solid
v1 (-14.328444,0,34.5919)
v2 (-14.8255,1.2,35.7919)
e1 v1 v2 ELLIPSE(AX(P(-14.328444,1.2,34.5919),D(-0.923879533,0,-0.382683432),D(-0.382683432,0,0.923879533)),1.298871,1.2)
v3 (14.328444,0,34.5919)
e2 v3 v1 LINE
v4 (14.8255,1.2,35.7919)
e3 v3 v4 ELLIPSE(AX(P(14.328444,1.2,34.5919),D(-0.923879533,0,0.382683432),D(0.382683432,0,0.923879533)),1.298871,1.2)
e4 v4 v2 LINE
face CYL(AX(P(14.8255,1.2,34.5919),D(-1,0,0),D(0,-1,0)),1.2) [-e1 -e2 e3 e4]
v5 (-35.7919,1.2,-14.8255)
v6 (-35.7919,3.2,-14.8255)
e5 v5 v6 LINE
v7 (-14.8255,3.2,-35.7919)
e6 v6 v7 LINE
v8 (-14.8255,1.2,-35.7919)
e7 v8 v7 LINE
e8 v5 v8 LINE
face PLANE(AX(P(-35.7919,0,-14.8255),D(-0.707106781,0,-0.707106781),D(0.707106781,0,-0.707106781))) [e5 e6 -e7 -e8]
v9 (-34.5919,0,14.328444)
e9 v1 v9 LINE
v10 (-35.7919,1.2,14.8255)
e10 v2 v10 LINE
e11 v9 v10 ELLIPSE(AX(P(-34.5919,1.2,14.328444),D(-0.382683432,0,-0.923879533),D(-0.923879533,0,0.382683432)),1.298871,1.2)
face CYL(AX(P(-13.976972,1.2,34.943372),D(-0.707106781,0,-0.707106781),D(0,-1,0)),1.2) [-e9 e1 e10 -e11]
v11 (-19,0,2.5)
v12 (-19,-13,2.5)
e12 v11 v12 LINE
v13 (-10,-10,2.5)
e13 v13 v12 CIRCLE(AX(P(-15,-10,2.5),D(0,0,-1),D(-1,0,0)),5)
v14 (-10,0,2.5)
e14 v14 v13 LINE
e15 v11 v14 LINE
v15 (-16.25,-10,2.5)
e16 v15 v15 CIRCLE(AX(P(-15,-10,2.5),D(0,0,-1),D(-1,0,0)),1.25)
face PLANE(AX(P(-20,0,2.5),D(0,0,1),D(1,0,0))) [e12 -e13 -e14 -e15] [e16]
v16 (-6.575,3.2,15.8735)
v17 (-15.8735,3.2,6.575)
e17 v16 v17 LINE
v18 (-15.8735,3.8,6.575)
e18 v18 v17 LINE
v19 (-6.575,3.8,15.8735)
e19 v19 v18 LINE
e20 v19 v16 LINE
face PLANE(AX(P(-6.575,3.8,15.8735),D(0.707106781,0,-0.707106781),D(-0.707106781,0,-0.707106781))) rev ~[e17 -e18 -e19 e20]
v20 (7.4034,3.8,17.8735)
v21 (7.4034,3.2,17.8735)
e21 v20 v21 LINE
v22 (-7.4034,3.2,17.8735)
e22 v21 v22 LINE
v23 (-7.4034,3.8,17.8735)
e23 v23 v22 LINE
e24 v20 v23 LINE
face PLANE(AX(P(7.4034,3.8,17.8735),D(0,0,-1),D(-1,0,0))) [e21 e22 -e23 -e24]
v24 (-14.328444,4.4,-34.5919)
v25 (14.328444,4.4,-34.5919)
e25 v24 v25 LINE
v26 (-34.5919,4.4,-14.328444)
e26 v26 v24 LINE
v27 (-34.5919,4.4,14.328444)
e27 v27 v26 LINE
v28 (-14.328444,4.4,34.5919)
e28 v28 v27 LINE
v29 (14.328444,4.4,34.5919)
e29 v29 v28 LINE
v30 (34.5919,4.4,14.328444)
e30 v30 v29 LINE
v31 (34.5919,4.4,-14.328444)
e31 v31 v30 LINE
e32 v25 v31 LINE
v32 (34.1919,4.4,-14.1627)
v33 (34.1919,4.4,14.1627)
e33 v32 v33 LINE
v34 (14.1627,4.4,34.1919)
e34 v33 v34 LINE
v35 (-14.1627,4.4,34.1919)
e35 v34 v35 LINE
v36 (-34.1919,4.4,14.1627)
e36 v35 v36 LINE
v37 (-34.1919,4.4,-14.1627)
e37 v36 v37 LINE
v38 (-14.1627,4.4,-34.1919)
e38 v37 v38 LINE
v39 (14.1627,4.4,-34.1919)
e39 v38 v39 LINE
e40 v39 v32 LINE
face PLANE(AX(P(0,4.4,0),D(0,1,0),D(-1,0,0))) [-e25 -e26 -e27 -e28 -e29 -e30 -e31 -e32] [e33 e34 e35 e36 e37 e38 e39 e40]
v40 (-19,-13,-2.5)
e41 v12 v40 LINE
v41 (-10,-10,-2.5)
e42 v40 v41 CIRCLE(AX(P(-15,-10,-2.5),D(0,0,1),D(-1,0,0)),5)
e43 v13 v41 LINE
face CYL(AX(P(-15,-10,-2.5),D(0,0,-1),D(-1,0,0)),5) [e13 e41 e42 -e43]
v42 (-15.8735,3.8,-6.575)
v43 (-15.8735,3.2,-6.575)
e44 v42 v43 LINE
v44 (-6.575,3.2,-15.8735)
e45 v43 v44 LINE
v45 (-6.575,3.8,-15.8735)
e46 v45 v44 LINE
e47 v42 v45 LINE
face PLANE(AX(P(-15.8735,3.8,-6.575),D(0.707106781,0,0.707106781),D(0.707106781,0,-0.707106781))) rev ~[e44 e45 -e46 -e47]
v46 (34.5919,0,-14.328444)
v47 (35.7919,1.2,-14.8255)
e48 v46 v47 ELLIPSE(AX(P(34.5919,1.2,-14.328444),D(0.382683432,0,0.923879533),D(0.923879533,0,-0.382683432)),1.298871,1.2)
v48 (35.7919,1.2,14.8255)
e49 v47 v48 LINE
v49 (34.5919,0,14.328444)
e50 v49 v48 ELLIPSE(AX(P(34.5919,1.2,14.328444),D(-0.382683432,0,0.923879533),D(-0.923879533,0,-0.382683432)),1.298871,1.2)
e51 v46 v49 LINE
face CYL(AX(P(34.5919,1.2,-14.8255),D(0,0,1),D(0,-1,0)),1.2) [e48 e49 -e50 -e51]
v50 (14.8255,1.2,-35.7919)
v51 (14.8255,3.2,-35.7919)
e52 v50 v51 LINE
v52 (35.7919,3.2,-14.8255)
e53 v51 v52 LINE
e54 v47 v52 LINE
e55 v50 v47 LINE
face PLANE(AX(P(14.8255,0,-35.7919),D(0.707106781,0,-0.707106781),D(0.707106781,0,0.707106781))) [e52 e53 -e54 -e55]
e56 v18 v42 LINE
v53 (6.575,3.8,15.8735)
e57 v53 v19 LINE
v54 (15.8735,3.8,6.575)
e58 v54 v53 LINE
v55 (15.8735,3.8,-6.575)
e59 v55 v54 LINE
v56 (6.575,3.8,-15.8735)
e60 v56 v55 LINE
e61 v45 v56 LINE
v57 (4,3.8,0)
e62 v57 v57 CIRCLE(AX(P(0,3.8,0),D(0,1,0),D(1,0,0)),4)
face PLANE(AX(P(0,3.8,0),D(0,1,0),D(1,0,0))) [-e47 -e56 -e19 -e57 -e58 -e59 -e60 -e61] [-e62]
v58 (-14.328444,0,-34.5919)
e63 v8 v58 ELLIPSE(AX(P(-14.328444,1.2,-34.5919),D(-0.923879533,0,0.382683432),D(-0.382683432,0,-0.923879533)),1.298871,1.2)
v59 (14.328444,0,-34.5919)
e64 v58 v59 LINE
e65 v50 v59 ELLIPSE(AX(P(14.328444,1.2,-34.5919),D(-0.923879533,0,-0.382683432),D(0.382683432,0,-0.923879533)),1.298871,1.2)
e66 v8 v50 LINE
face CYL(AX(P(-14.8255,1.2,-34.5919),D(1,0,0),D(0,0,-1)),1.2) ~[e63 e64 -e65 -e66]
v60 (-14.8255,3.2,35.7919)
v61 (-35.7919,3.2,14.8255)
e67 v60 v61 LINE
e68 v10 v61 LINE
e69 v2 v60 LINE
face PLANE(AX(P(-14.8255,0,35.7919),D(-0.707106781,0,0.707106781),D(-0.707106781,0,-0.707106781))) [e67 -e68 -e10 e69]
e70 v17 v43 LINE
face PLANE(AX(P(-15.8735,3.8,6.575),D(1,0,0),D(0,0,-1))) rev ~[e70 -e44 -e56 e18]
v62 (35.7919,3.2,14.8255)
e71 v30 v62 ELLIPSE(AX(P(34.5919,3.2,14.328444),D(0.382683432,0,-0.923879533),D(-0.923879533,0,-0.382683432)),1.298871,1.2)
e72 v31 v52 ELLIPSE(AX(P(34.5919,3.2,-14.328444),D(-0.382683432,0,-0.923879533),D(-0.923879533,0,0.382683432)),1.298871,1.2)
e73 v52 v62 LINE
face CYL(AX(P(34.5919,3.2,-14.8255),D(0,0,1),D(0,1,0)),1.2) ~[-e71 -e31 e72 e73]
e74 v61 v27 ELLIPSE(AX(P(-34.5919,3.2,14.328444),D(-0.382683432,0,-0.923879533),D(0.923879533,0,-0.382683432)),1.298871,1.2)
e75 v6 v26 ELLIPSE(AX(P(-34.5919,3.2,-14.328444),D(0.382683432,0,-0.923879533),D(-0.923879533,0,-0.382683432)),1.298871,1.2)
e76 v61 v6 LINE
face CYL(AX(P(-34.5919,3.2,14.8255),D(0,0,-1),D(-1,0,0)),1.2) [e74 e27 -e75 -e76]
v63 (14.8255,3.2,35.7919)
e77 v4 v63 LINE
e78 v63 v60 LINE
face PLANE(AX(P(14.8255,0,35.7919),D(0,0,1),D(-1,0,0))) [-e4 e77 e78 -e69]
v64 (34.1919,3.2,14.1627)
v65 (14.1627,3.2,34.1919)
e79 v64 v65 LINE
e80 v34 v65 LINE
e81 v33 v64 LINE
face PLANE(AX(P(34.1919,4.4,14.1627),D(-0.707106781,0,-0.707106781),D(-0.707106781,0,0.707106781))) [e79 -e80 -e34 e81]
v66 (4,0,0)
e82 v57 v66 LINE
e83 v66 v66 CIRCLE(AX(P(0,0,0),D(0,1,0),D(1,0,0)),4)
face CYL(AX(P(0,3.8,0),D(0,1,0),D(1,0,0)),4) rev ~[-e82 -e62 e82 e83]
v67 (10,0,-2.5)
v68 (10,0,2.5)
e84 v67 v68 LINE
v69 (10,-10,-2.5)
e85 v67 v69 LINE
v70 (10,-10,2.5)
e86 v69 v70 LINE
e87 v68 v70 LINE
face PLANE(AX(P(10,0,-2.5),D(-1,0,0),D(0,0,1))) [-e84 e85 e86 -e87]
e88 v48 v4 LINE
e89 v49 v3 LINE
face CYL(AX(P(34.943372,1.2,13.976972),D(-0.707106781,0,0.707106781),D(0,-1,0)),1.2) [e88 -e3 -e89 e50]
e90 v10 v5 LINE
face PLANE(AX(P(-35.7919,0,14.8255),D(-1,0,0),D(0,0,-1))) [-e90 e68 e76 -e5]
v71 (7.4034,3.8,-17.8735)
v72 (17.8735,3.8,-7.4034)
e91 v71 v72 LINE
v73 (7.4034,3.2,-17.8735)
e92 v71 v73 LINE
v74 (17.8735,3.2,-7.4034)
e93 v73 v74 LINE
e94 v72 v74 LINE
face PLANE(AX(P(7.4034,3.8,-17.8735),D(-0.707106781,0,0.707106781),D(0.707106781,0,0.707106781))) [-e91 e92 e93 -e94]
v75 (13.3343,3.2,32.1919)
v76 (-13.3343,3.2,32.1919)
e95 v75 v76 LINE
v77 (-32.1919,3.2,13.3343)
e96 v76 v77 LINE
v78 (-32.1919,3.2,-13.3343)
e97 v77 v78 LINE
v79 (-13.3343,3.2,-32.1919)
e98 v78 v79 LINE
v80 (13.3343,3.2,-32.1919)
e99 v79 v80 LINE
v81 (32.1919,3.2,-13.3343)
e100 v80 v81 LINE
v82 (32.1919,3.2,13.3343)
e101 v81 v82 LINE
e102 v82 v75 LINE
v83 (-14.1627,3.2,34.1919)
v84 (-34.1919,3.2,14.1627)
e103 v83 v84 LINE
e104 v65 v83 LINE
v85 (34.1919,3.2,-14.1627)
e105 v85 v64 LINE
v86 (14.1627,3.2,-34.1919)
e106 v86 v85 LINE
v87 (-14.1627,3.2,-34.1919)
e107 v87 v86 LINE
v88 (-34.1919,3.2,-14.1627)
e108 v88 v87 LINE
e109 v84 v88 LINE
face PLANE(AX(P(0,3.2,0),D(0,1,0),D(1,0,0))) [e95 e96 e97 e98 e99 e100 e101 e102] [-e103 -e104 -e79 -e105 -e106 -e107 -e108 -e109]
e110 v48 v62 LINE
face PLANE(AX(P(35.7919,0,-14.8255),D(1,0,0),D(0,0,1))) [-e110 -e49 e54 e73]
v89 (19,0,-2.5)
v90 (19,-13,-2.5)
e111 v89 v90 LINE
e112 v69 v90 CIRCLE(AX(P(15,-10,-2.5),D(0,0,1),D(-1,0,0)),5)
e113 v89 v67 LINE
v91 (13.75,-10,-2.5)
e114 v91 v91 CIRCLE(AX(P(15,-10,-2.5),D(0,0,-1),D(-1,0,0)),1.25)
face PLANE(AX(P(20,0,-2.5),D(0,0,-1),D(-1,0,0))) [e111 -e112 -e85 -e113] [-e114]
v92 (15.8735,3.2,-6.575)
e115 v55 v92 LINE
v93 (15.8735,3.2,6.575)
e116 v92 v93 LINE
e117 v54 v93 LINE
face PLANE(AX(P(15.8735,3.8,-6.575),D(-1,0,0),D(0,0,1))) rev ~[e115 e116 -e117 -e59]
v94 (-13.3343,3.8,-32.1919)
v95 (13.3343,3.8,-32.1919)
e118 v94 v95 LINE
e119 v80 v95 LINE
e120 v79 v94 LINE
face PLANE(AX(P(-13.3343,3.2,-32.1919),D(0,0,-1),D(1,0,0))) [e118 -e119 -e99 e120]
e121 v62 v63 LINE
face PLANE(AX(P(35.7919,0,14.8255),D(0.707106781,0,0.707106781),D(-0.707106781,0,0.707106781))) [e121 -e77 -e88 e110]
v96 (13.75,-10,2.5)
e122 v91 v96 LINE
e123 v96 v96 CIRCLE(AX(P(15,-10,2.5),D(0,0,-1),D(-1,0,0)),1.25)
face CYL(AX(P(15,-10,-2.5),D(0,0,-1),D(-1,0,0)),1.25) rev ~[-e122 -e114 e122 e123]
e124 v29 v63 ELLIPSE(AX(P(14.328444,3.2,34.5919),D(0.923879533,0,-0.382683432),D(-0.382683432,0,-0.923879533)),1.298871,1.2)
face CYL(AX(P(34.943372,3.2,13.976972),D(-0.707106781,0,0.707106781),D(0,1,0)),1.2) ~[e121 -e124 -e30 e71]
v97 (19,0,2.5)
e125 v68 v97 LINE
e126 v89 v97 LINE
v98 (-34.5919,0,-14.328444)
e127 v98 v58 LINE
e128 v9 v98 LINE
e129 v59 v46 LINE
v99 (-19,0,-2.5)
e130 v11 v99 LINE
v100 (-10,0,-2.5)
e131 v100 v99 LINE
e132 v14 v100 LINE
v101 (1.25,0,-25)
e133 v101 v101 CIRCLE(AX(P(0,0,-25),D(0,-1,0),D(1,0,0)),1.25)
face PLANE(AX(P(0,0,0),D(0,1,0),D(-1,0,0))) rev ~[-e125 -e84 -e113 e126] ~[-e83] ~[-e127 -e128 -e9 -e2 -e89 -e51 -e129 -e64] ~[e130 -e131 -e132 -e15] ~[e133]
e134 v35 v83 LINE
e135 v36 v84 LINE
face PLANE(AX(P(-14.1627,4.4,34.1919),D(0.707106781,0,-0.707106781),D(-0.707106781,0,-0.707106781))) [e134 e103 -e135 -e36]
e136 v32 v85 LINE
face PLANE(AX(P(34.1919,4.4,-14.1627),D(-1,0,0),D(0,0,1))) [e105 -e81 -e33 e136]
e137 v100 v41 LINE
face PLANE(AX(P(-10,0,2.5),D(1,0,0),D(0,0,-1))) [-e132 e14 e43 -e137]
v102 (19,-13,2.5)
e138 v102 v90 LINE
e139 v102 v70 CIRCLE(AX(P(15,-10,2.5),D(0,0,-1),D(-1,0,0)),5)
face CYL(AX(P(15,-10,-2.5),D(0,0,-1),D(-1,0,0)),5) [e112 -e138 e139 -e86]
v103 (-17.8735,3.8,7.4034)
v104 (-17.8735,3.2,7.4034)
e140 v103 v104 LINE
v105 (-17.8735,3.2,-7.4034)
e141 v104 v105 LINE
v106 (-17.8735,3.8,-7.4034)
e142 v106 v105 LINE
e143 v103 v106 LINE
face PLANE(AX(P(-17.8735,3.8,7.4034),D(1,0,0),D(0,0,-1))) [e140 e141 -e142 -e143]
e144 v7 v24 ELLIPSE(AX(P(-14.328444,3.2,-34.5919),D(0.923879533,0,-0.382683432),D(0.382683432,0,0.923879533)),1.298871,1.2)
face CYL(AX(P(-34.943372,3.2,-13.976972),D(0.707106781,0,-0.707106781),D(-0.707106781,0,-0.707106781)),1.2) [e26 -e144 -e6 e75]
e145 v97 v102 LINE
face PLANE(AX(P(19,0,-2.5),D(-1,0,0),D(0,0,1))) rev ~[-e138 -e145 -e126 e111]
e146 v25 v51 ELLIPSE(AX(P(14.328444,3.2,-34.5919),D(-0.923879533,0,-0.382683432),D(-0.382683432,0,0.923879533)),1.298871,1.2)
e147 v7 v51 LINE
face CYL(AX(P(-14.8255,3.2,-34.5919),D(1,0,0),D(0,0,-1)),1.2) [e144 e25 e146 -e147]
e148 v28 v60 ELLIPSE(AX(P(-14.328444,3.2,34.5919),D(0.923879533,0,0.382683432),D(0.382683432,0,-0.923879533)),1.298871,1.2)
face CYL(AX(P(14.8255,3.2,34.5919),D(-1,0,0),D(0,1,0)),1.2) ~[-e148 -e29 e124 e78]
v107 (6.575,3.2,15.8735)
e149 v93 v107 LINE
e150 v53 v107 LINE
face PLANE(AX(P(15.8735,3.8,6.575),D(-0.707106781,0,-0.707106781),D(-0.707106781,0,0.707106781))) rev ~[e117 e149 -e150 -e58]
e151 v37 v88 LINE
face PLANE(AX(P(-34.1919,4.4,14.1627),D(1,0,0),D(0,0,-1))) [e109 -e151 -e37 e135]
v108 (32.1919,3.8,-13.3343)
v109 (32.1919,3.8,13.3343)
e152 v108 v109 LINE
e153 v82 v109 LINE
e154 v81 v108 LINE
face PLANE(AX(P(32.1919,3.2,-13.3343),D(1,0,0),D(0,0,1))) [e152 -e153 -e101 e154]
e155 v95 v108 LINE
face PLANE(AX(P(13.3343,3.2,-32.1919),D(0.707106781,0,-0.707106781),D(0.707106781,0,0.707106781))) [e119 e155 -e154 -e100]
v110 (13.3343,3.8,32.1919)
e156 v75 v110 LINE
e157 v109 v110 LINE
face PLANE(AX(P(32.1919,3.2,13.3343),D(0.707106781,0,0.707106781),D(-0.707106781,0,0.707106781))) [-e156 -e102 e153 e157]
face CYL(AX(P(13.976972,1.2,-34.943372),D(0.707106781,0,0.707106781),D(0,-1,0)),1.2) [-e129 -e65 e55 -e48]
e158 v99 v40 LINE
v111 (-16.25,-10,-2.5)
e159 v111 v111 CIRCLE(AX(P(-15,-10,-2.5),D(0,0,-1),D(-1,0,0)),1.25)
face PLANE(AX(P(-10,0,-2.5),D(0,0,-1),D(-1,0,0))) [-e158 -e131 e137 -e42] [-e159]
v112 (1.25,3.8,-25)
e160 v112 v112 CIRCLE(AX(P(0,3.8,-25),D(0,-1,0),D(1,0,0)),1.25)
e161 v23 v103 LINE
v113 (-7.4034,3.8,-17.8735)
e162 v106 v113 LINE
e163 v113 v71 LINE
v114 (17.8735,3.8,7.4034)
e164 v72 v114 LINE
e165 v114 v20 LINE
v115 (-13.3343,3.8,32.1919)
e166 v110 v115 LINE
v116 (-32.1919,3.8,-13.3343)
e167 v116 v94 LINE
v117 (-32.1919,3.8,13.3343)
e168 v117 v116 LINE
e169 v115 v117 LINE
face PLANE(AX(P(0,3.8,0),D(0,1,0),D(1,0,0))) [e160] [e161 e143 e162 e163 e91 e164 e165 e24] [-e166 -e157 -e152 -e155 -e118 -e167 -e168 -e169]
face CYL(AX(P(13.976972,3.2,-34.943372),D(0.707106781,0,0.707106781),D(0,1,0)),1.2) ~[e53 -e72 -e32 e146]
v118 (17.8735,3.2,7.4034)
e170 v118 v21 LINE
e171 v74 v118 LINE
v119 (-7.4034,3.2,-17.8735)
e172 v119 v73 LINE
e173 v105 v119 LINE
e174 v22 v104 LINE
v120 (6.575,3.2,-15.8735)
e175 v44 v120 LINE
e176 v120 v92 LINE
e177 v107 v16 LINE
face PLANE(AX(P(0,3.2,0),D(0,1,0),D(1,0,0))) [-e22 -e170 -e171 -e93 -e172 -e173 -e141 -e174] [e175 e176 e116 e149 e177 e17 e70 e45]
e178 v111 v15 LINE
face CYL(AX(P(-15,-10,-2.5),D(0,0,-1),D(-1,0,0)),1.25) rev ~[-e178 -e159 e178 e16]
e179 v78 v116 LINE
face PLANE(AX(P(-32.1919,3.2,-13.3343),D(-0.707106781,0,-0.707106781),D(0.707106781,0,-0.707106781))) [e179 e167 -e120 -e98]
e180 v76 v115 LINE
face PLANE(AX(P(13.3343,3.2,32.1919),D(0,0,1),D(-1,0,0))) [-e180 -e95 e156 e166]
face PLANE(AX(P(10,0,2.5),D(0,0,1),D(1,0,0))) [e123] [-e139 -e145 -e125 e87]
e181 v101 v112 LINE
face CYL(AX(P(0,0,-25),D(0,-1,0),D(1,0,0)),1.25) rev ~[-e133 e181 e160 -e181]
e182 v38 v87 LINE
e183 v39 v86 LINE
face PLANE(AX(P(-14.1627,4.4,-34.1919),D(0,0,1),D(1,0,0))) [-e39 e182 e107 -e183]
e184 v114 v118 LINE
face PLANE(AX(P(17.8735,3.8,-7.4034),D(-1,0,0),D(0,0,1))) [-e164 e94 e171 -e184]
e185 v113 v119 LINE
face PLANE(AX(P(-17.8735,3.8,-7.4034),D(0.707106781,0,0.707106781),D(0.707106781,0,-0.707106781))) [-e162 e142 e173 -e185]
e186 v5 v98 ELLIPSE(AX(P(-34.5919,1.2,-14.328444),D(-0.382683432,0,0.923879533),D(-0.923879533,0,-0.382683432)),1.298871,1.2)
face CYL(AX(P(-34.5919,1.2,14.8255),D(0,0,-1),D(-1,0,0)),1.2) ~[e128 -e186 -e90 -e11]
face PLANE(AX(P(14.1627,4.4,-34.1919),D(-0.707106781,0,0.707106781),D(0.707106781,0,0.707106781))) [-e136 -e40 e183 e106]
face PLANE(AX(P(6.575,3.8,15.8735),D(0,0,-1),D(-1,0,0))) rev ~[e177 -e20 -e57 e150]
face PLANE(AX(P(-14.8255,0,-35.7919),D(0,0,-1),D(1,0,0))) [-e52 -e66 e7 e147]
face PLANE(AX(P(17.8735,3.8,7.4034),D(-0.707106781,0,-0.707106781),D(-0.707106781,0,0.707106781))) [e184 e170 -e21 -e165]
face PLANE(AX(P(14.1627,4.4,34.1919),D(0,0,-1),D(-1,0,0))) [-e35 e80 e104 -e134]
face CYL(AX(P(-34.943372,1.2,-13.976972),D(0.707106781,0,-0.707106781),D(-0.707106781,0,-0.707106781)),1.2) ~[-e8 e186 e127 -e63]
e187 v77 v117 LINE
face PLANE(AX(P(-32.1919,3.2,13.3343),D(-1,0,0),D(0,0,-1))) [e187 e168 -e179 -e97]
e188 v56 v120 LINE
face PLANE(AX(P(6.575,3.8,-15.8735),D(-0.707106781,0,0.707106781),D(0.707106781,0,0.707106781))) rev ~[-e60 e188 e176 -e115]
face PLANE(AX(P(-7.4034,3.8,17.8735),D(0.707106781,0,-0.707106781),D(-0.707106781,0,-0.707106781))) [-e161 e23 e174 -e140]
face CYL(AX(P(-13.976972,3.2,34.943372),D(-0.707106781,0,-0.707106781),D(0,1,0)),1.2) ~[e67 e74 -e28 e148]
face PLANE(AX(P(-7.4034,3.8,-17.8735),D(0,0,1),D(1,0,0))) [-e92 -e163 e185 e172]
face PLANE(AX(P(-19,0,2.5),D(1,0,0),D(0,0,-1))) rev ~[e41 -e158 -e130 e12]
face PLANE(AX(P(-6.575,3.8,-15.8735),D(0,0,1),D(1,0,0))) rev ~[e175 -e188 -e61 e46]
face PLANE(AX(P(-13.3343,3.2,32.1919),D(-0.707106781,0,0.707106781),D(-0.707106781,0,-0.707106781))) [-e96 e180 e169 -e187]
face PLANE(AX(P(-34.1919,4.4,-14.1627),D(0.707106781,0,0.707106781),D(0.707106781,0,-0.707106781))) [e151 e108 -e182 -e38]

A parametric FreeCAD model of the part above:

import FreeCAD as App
import Part
import Sketcher

V = App.Vector
Q = App.Units.Quantity


def edges_at(feature, points):
    """Names of the edges that pass closest to the given points."""
    edges = feature.Shape.Edges
    near = lambda p: min(range(len(edges)), key=lambda i: edges[i].distToShape(Part.Vertex(*p))[0])
    return sorted({f"Edge{near(p) + 1}" for p in points})

doc = App.newDocument("Part")
params = doc.addObject("Spreadsheet::Sheet", "Params")
for row, (alias, value) in enumerate([
    ("pad1_length", "4.4 mm"),
    ("pocket1_length", "1.2 mm"),
    ("sketch3_width", "10 mm"),
    ("sketch3_height", "5 mm"),
    ("pad2_length", "10 mm"),
    ("sketch4_diameter", "10 mm"),
    ("pad3_length", "5 mm"),
    ("sketch5_diameter", "2.5 mm"),
    ("pocket2_length", "5 mm"),
    ("pad4_length", "0.6 mm"),
    ("fillet_radius", "1.2 mm"),
    ("sketch7_width", "1 mm"),
    ("sketch7_height", "5 mm"),
    ("pocket3_length", "15 mm"),
    ("sketch8_diameter", "2.5 mm"),
    ("pocket4_length", "5 mm"),
    ("sketch9_width", "13.15 mm"),
    ("sketch9_length", "13.15 mm"),
    ("pocket5_length", "0.6 mm"),
    ("sketch10_diameter", "8 mm"),
    ("pocket6_length", "3.8 mm"),
], start=1):
    params.set(f"A{row}", alias)
    params.set(f"B{row}", "=" + value)
    params.setAlias(f"B{row}", alias)

body = doc.addObject("PartDesign::Body", "Body")

sketch1 = body.newObject("Sketcher::SketchObject", "Sketch")
sketch1.AttachmentSupport = (doc.getObject("XZ_Plane"), [""])
sketch1.MapMode = "FlatFace"
sketch1.addGeometry(Part.LineSegment(V(-15, -36, 0), V(-36, -15, 0)), False)
sketch1.addGeometry(Part.LineSegment(V(-36, -15, 0), V(-36, 15, 0)), False)
sketch1.addGeometry(Part.LineSegment(V(-36, 15, 0), V(-15, 36, 0)), False)
sketch1.addGeometry(Part.LineSegment(V(-15, 36, 0), V(15, 36, 0)), False)
sketch1.addGeometry(Part.LineSegment(V(15, 36, 0), V(36, 15, 0)), False)
sketch1.addGeometry(Part.LineSegment(V(36, 15, 0), V(36, -15, 0)), False)
sketch1.addGeometry(Part.LineSegment(V(36, -15, 0), V(15, -36, 0)), False)
sketch1.addGeometry(Part.LineSegment(V(15, -36, 0), V(-15, -36, 0)), False)
sketch1.addConstraint(Sketcher.Constraint("Coincident", 0, 2, 1, 1))
sketch1.addConstraint(Sketcher.Constraint("Coincident", 1, 2, 2, 1))
sketch1.addConstraint(Sketcher.Constraint("Coincident", 2, 2, 3, 1))
sketch1.addConstraint(Sketcher.Constraint("Coincident", 3, 2, 4, 1))
sketch1.addConstraint(Sketcher.Constraint("Coincident", 4, 2, 5, 1))
sketch1.addConstraint(Sketcher.Constraint("Coincident", 5, 2, 6, 1))
sketch1.addConstraint(Sketcher.Constraint("Coincident", 6, 2, 7, 1))
sketch1.addConstraint(Sketcher.Constraint("Coincident", 7, 2, 0, 1))
sketch1.addConstraint(Sketcher.Constraint("Vertical", 1))
sketch1.addConstraint(Sketcher.Constraint("Horizontal", 3))
sketch1.addConstraint(Sketcher.Constraint("Vertical", 5))
sketch1.addConstraint(Sketcher.Constraint("Horizontal", 7))
sketch1.addConstraint(Sketcher.Constraint("Symmetric", 0, 2, 4, 2, -1, 1))
sketch1.addConstraint(Sketcher.Constraint("Symmetric", 2, 2, 6, 2, -1, 1))
sketch1.addConstraint(Sketcher.Constraint("Perpendicular", 0, 2))
sketch1.addConstraint(Sketcher.Constraint("Perpendicular", 2, 4))
sketch1.addConstraint(Sketcher.Constraint("Perpendicular", 4, 6))
sketch1.addConstraint(Sketcher.Constraint("Horizontal", 1, 2, 4, 2))
sketch1.addConstraint(Sketcher.Constraint("Vertical", 3, 2, 6, 2))
sketch1.addConstraint(Sketcher.Constraint("Equal", 7, 1))
sketch1.addConstraint(Sketcher.Constraint("DistanceX", 3, 1, 3, 2, Q("29.651 mm")))
sketch1.addConstraint(Sketcher.Constraint("Distance", 0, Q("29.651 mm")))
pad1 = body.newObject("PartDesign::Pad", "Pad")
pad1.Profile = sketch1
pad1.setExpression("Length", "Params.pad1_length")
pad1.Reversed = True

sketch2 = body.newObject("Sketcher::SketchObject", "Sketch001")
sketch2.AttachmentSupport = (doc.getObject("XZ_Plane"), [""])
sketch2.MapMode = "FlatFace"
sketch2.AttachmentOffset = App.Placement(V(0, 0, -4.4), App.Rotation())
sketch2.addGeometry(Part.LineSegment(V(14, -34, 0), V(-14, -34, 0)), False)
sketch2.addGeometry(Part.LineSegment(V(-14, -34, 0), V(-34, -14, 0)), False)
sketch2.addGeometry(Part.LineSegment(V(-34, -14, 0), V(-34, 14, 0)), False)
sketch2.addGeometry(Part.LineSegment(V(-34, 14, 0), V(-14, 34, 0)), False)
sketch2.addGeometry(Part.LineSegment(V(-14, 34, 0), V(14, 34, 0)), False)
sketch2.addGeometry(Part.LineSegment(V(14, 34, 0), V(34, 14, 0)), False)
sketch2.addGeometry(Part.LineSegment(V(34, 14, 0), V(34, -14, 0)), False)
sketch2.addGeometry(Part.LineSegment(V(34, -14, 0), V(14, -34, 0)), False)
sketch2.addConstraint(Sketcher.Constraint("Coincident", 0, 2, 1, 1))
sketch2.addConstraint(Sketcher.Constraint("Coincident", 1, 2, 2, 1))
sketch2.addConstraint(Sketcher.Constraint("Coincident", 2, 2, 3, 1))
sketch2.addConstraint(Sketcher.Constraint("Coincident", 3, 2, 4, 1))
sketch2.addConstraint(Sketcher.Constraint("Coincident", 4, 2, 5, 1))
sketch2.addConstraint(Sketcher.Constraint("Coincident", 5, 2, 6, 1))
sketch2.addConstraint(Sketcher.Constraint("Coincident", 6, 2, 7, 1))
sketch2.addConstraint(Sketcher.Constraint("Coincident", 7, 2, 0, 1))
sketch2.addConstraint(Sketcher.Constraint("Horizontal", 0))
sketch2.addConstraint(Sketcher.Constraint("Vertical", 2))
sketch2.addConstraint(Sketcher.Constraint("Horizontal", 4))
sketch2.addConstraint(Sketcher.Constraint("Vertical", 6))
sketch2.addConstraint(Sketcher.Constraint("Symmetric", 0, 2, 4, 2, -1, 1))
sketch2.addConstraint(Sketcher.Constraint("Symmetric", 1, 2, 5, 2, -1, 1))
sketch2.addConstraint(Sketcher.Constraint("Perpendicular", 1, 3))
sketch2.addConstraint(Sketcher.Constraint("Perpendicular", 5, 7))
sketch2.addConstraint(Sketcher.Constraint("Horizontal", 2, 2, 5, 2))
sketch2.addConstraint(Sketcher.Constraint("Horizontal", 1, 2, 6, 2))
sketch2.addConstraint(Sketcher.Constraint("Vertical", 0, 2, 3, 2))
sketch2.addConstraint(Sketcher.Constraint("Equal", 4, 2))
sketch2.addConstraint(Sketcher.Constraint("DistanceX", 0, 2, 0, 1, Q("28.3254 mm")))
sketch2.addConstraint(Sketcher.Constraint("DistanceY", 0, 2, -1, 1, Q("34.192 mm")))
pocket1 = body.newObject("PartDesign::Pocket", "Pocket")
pocket1.Profile = sketch2
pocket1.setExpression("Length", "Params.pocket1_length")
pocket1.Reversed = True

sketch3 = body.newObject("Sketcher::SketchObject", "Sketch002")
sketch3.AttachmentSupport = (doc.getObject("XZ_Plane"), [""])
sketch3.MapMode = "FlatFace"
sketch3.addGeometry(Part.LineSegment(V(20, 2, 0), V(10, 2, 0)), False)
sketch3.addGeometry(Part.LineSegment(V(10, 2, 0), V(10, -2, 0)), False)
sketch3.addGeometry(Part.LineSegment(V(10, -2, 0), V(20, -2, 0)), False)
sketch3.addGeometry(Part.LineSegment(V(20, -2, 0), V(20, 2, 0)), False)
sketch3.addGeometry(Part.LineSegment(V(-10, 2, 0), V(-20, 2, 0)), False)
sketch3.addGeometry(Part.LineSegment(V(-20, 2, 0), V(-20, -2, 0)), False)
sketch3.addGeometry(Part.LineSegment(V(-20, -2, 0), V(-10, -2, 0)), False)
sketch3.addGeometry(Part.LineSegment(V(-10, -2, 0), V(-10, 2, 0)), False)
sketch3.addConstraint(Sketcher.Constraint("Coincident", 0, 2, 1, 1))
sketch3.addConstraint(Sketcher.Constraint("Coincident", 1, 2, 2, 1))
sketch3.addConstraint(Sketcher.Constraint("Coincident", 2, 2, 3, 1))
sketch3.addConstraint(Sketcher.Constraint("Coincident", 3, 2, 0, 1))
sketch3.addConstraint(Sketcher.Constraint("Coincident", 4, 2, 5, 1))
sketch3.addConstraint(Sketcher.Constraint("Coincident", 5, 2, 6, 1))
sketch3.addConstraint(Sketcher.Constraint("Coincident", 6, 2, 7, 1))
sketch3.addConstraint(Sketcher.Constraint("Coincident", 7, 2, 4, 1))
sketch3.addConstraint(Sketcher.Constraint("Horizontal", 0))
sketch3.addConstraint(Sketcher.Constraint("Vertical", 1))
sketch3.addConstraint(Sketcher.Constraint("Horizontal", 2))
sketch3.addConstraint(Sketcher.Constraint("Vertical", 3))
sketch3.addConstraint(Sketcher.Constraint("Horizontal", 4))
sketch3.addConstraint(Sketcher.Constraint("Vertical", 5))
sketch3.addConstraint(Sketcher.Constraint("Horizontal", 6))
sketch3.addConstraint(Sketcher.Constraint("Vertical", 7))
sketch3.addConstraint(Sketcher.Constraint("Symmetric", 2, 2, 4, 2, -1, 1))
sketch3.addConstraint(Sketcher.Constraint("Symmetric", 0, 2, 6, 2, -1, 1))
sketch3.addConstraint(Sketcher.Constraint("Horizontal", 3, 2, 4, 2))
sketch3.addConstraint(Sketcher.Constraint("DistanceX", 0, 2, 0, 1, Q("10 mm")))
sketch3.addConstraint(Sketcher.Constraint("DistanceY", 1, 2, 1, 1, Q("5 mm")))
sketch3.addConstraint(Sketcher.Constraint("DistanceX", -1, 1, 0, 2, Q("10 mm")))
sketch3.setExpression("Constraints[19]", "Params.sketch3_width")
sketch3.setExpression("Constraints[20]", "Params.sketch3_height")
pad2 = body.newObject("PartDesign::Pad", "Pad001")
pad2.Profile = sketch3
pad2.setExpression("Length", "Params.pad2_length")

sketch4 = body.newObject("Sketcher::SketchObject", "Sketch003")
sketch4.AttachmentSupport = (doc.getObject("XY_Plane"), [""])
sketch4.MapMode = "FlatFace"
sketch4.AttachmentOffset = App.Placement(V(0, 0, -2.5), App.Rotation())
sketch4.addGeometry(Part.Circle(V(-15, -10, 0), V(0, 0, 1), 5), False)
sketch4.addGeometry(Part.Circle(V(15, -10, 0), V(0, 0, 1), 5), False)
sketch4.addConstraint(Sketcher.Constraint("Equal", 0, 1))
sketch4.addConstraint(Sketcher.Constraint("Symmetric", 0, 3, 1, 3, -2))
sketch4.addConstraint(Sketcher.Constraint("Diameter", 0, Q("10 mm")))
sketch4.addConstraint(Sketcher.Constraint("DistanceY", 0, 3, -1, 1, Q("10 mm")))
sketch4.addConstraint(Sketcher.Constraint("DistanceX", 0, 3, -1, 1, Q("15 mm")))
sketch4.setExpression("Constraints[2]", "Params.sketch4_diameter")
pad3 = body.newObject("PartDesign::Pad", "Pad002")
pad3.Profile = sketch4
pad3.setExpression("Length", "Params.pad3_length")

sketch5 = body.newObject("Sketcher::SketchObject", "Sketch004")
sketch5.AttachmentSupport = (doc.getObject("XY_Plane"), [""])
sketch5.MapMode = "FlatFace"
sketch5.AttachmentOffset = App.Placement(V(0, 0, -2.5), App.Rotation())
sketch5.addGeometry(Part.Circle(V(-15, -10, 0), V(0, 0, 1), 1.2), False)
sketch5.addGeometry(Part.Circle(V(15, -10, 0), V(0, 0, 1), 1.2), False)
sketch5.addConstraint(Sketcher.Constraint("Equal", 0, 1))
sketch5.addConstraint(Sketcher.Constraint("Symmetric", 0, 3, 1, 3, -2))
sketch5.addConstraint(Sketcher.Constraint("Diameter", 0, Q("2.5 mm")))
sketch5.addConstraint(Sketcher.Constraint("DistanceY", 0, 3, -1, 1, Q("10 mm")))
sketch5.addConstraint(Sketcher.Constraint("DistanceX", 0, 3, 1, 3, Q("30 mm")))
sketch5.setExpression("Constraints[2]", "Params.sketch5_diameter")
pocket2 = body.newObject("PartDesign::Pocket", "Pocket001")
pocket2.Profile = sketch5
pocket2.setExpression("Length", "Params.pocket2_length")
pocket2.Reversed = True

sketch6 = body.newObject("Sketcher::SketchObject", "Sketch005")
sketch6.AttachmentSupport = (doc.getObject("XZ_Plane"), [""])
sketch6.MapMode = "FlatFace"
sketch6.AttachmentOffset = App.Placement(V(0, 0, -3.2), App.Rotation())
sketch6.addGeometry(Part.LineSegment(V(13, -32, 0), V(-13, -32, 0)), False)
sketch6.addGeometry(Part.LineSegment(V(-13, -32, 0), V(-32, -13, 0)), False)
sketch6.addGeometry(Part.LineSegment(V(-32, -13, 0), V(-32, 13, 0)), False)
sketch6.addGeometry(Part.LineSegment(V(-32, 13, 0), V(-13, 32, 0)), False)
sketch6.addGeometry(Part.LineSegment(V(-13, 32, 0), V(13, 32, 0)), False)
sketch6.addGeometry(Part.LineSegment(V(13, 32, 0), V(32, 13, 0)), False)
sketch6.addGeometry(Part.LineSegment(V(32, 13, 0), V(32, -13, 0)), False)
sketch6.addGeometry(Part.LineSegment(V(32, -13, 0), V(13, -32, 0)), False)
sketch6.addConstraint(Sketcher.Constraint("Coincident", 0, 2, 1, 1))
sketch6.addConstraint(Sketcher.Constraint("Coincident", 1, 2, 2, 1))
sketch6.addConstraint(Sketcher.Constraint("Coincident", 2, 2, 3, 1))
sketch6.addConstraint(Sketcher.Constraint("Coincident", 3, 2, 4, 1))
sketch6.addConstraint(Sketcher.Constraint("Coincident", 4, 2, 5, 1))
sketch6.addConstraint(Sketcher.Constraint("Coincident", 5, 2, 6, 1))
sketch6.addConstraint(Sketcher.Constraint("Coincident", 6, 2, 7, 1))
sketch6.addConstraint(Sketcher.Constraint("Coincident", 7, 2, 0, 1))
sketch6.addConstraint(Sketcher.Constraint("Horizontal", 0))
sketch6.addConstraint(Sketcher.Constraint("Vertical", 2))
sketch6.addConstraint(Sketcher.Constraint("Horizontal", 4))
sketch6.addConstraint(Sketcher.Constraint("Vertical", 6))
sketch6.addConstraint(Sketcher.Constraint("Symmetric", 0, 2, 4, 2, -1, 1))
sketch6.addConstraint(Sketcher.Constraint("Symmetric", 1, 2, 5, 2, -1, 1))
sketch6.addConstraint(Sketcher.Constraint("Perpendicular", 1, 3))
sketch6.addConstraint(Sketcher.Constraint("Perpendicular", 5, 7))
sketch6.addConstraint(Sketcher.Constraint("Horizontal", 2, 2, 5, 2))
sketch6.addConstraint(Sketcher.Constraint("Horizontal", 1, 2, 6, 2))
sketch6.addConstraint(Sketcher.Constraint("Vertical", 0, 2, 3, 2))
sketch6.addConstraint(Sketcher.Constraint("Equal", 4, 2))
sketch6.addConstraint(Sketcher.Constraint("DistanceX", 0, 2, 0, 1, Q("26.6686 mm")))
sketch6.addConstraint(Sketcher.Constraint("DistanceY", 0, 2, -1, 1, Q("32.192 mm")))
pad4 = body.newObject("PartDesign::Pad", "Pad003")
pad4.Profile = sketch6
pad4.setExpression("Length", "Params.pad4_length")
pad4.Reversed = True
doc.recompute()

fillet = body.newObject("PartDesign::Fillet", "Fillet")
fillet.Base = (pad4, edges_at(pad4, [
    (-35.792, 4.4, 0),
    (-25.309, 4.4, 25.309),
    (0, 4.4, 35.792),
    (25.309, 4.4, 25.309),
    (35.792, 4.4, 0),
    (25.309, 4.4, -25.309),
    (0, 4.4, -35.792),
    (-25.309, 4.4, -25.309),
    (25.309, 0, 25.309),
    (0, 0, 35.792),
    (-25.309, 0, 25.309),
    (-35.792, 0, 0),
    (-25.309, 0, -25.309),
    (0, 0, -35.792),
    (25.309, 0, -25.309),
    (35.792, 0, 0),
]))
fillet.setExpression("Radius", "Params.fillet_radius")

sketch7 = body.newObject("Sketcher::SketchObject", "Sketch006")
sketch7.AttachmentSupport = (doc.getObject("XZ_Plane"), [""])
sketch7.MapMode = "FlatFace"
sketch7.addGeometry(Part.LineSegment(V(-19, 2.5, 0), V(-20, 2.5, 0)), False)
sketch7.addGeometry(Part.LineSegment(V(-20, 2.5, 0), V(-20, -2.5, 0)), False)
sketch7.addGeometry(Part.LineSegment(V(-20, -2.5, 0), V(-19, -2.5, 0)), False)
sketch7.addGeometry(Part.LineSegment(V(-19, -2.5, 0), V(-19, 2.5, 0)), False)
sketch7.addGeometry(Part.LineSegment(V(19, -2.5, 0), V(20, -2.5, 0)), False)
sketch7.addGeometry(Part.LineSegment(V(20, -2.5, 0), V(20, 2.5, 0)), False)
sketch7.addGeometry(Part.LineSegment(V(20, 2.5, 0), V(19, 2.5, 0)), False)
sketch7.addGeometry(Part.LineSegment(V(19, 2.5, 0), V(19, -2.5, 0)), False)
sketch7.addConstraint(Sketcher.Constraint("Coincident", 0, 2, 1, 1))
sketch7.addConstraint(Sketcher.Constraint("Coincident", 1, 2, 2, 1))
sketch7.addConstraint(Sketcher.Constraint("Coincident", 2, 2, 3, 1))
sketch7.addConstraint(Sketcher.Constraint("Coincident", 3, 2, 0, 1))
sketch7.addConstraint(Sketcher.Constraint("Coincident", 4, 2, 5, 1))
sketch7.addConstraint(Sketcher.Constraint("Coincident", 5, 2, 6, 1))
sketch7.addConstraint(Sketcher.Constraint("Coincident", 6, 2, 7, 1))
sketch7.addConstraint(Sketcher.Constraint("Coincident", 7, 2, 4, 1))
sketch7.addConstraint(Sketcher.Constraint("Horizontal", 0))
sketch7.addConstraint(Sketcher.Constraint("Vertical", 1))
sketch7.addConstraint(Sketcher.Constraint("Horizontal", 2))
sketch7.addConstraint(Sketcher.Constraint("Vertical", 3))
sketch7.addConstraint(Sketcher.Constraint("Horizontal", 4))
sketch7.addConstraint(Sketcher.Constraint("Vertical", 5))
sketch7.addConstraint(Sketcher.Constraint("Horizontal", 6))
sketch7.addConstraint(Sketcher.Constraint("Vertical", 7))
sketch7.addConstraint(Sketcher.Constraint("Symmetric", 0, 2, 4, 2, -1, 1))
sketch7.addConstraint(Sketcher.Constraint("Symmetric", 2, 2, 6, 2, -1, 1))
sketch7.addConstraint(Sketcher.Constraint("Horizontal", 2, 2, 4, 2))
sketch7.addConstraint(Sketcher.Constraint("DistanceX", 0, 2, 0, 1, Q("1 mm")))
sketch7.addConstraint(Sketcher.Constraint("DistanceY", 1, 2, 1, 1, Q("5 mm")))
sketch7.addConstraint(Sketcher.Constraint("DistanceX", 0, 2, -1, 1, Q("20 mm")))
sketch7.setExpression("Constraints[19]", "Params.sketch7_width")
sketch7.setExpression("Constraints[20]", "Params.sketch7_height")
pocket3 = body.newObject("PartDesign::Pocket", "Pocket002")
pocket3.Profile = sketch7
pocket3.setExpression("Length", "Params.pocket3_length")
pocket3.Reversed = True

sketch8 = body.newObject("Sketcher::SketchObject", "Sketch007")
sketch8.AttachmentSupport = (doc.getObject("XZ_Plane"), [""])
sketch8.MapMode = "FlatFace"
sketch8.addGeometry(Part.Circle(V(0, -25, 0), V(0, 0, 1), 1.2), False)
sketch8.addConstraint(Sketcher.Constraint("PointOnObject", 0, 3, -2))
sketch8.addConstraint(Sketcher.Constraint("Diameter", 0, Q("2.5 mm")))
sketch8.addConstraint(Sketcher.Constraint("DistanceY", 0, 3, -1, 1, Q("25 mm")))
sketch8.setExpression("Constraints[1]", "Params.sketch8_diameter")
pocket4 = body.newObject("PartDesign::Pocket", "Pocket003")
pocket4.Profile = sketch8
pocket4.setExpression("Length", "Params.pocket4_length")

sketch9 = body.newObject("Sketcher::SketchObject", "Sketch008")
sketch9.AttachmentSupport = (doc.getObject("XZ_Plane"), [""])
sketch9.MapMode = "FlatFace"
sketch9.AttachmentOffset = App.Placement(V(0, 0, -3.8), App.Rotation())
sketch9.addGeometry(Part.LineSegment(V(7, -18, 0), V(-7, -18, 0)), False)
sketch9.addGeometry(Part.LineSegment(V(-7, -18, 0), V(-18, -7, 0)), False)
sketch9.addGeometry(Part.LineSegment(V(-18, -7, 0), V(-18, 7, 0)), False)
sketch9.addGeometry(Part.LineSegment(V(-18, 7, 0), V(-7, 18, 0)), False)
sketch9.addGeometry(Part.LineSegment(V(-7, 18, 0), V(7, 18, 0)), False)
sketch9.addGeometry(Part.LineSegment(V(7, 18, 0), V(18, 7, 0)), False)
sketch9.addGeometry(Part.LineSegment(V(18, 7, 0), V(18, -7, 0)), False)
sketch9.addGeometry(Part.LineSegment(V(18, -7, 0), V(7, -18, 0)), False)
sketch9.addGeometry(Part.LineSegment(V(-16, -7, 0), V(-7, -16, 0)), False)
sketch9.addGeometry(Part.LineSegment(V(-7, -16, 0), V(7, -16, 0)), False)
sketch9.addGeometry(Part.LineSegment(V(7, -16, 0), V(16, -7, 0)), False)
sketch9.addGeometry(Part.LineSegment(V(16, -7, 0), V(16, 7, 0)), False)
sketch9.addGeometry(Part.LineSegment(V(16, 7, 0), V(7, 16, 0)), False)
sketch9.addGeometry(Part.LineSegment(V(7, 16, 0), V(-7, 16, 0)), False)
sketch9.addGeometry(Part.LineSegment(V(-7, 16, 0), V(-16, 7, 0)), False)
sketch9.addGeometry(Part.LineSegment(V(-16, 7, 0), V(-16, -7, 0)), False)
sketch9.addConstraint(Sketcher.Constraint("Coincident", 0, 2, 1, 1))
sketch9.addConstraint(Sketcher.Constraint("Coincident", 1, 2, 2, 1))
sketch9.addConstraint(Sketcher.Constraint("Coincident", 2, 2, 3, 1))
sketch9.addConstraint(Sketcher.Constraint("Coincident", 3, 2, 4, 1))
sketch9.addConstraint(Sketcher.Constraint("Coincident", 4, 2, 5, 1))
sketch9.addConstraint(Sketcher.Constraint("Coincident", 5, 2, 6, 1))
sketch9.addConstraint(Sketcher.Constraint("Coincident", 6, 2, 7, 1))
sketch9.addConstraint(Sketcher.Constraint("Coincident", 7, 2, 0, 1))
sketch9.addConstraint(Sketcher.Constraint("Coincident", 8, 2, 9, 1))
sketch9.addConstraint(Sketcher.Constraint("Coincident", 9, 2, 10, 1))
sketch9.addConstraint(Sketcher.Constraint("Coincident", 10, 2, 11, 1))
sketch9.addConstraint(Sketcher.Constraint("Coincident", 11, 2, 12, 1))
sketch9.addConstraint(Sketcher.Constraint("Coincident", 12, 2, 13, 1))
sketch9.addConstraint(Sketcher.Constraint("Coincident", 13, 2, 14, 1))
sketch9.addConstraint(Sketcher.Constraint("Coincident", 14, 2, 15, 1))
sketch9.addConstraint(Sketcher.Constraint("Coincident", 15, 2, 8, 1))
sketch9.addConstraint(Sketcher.Constraint("Horizontal", 0))
sketch9.addConstraint(Sketcher.Constraint("Vertical", 2))
sketch9.addConstraint(Sketcher.Constraint("Horizontal", 4))
sketch9.addConstraint(Sketcher.Constraint("Vertical", 6))
sketch9.addConstraint(Sketcher.Constraint("Horizontal", 9))
sketch9.addConstraint(Sketcher.Constraint("Vertical", 11))
sketch9.addConstraint(Sketcher.Constraint("Horizontal", 13))
sketch9.addConstraint(Sketcher.Constraint("Vertical", 15))
sketch9.addConstraint(Sketcher.Constraint("Symmetric", 0, 2, 4, 2, -1, 1))
sketch9.addConstraint(Sketcher.Constraint("Symmetric", 1, 2, 5, 2, -1, 1))
sketch9.addConstraint(Sketcher.Constraint("Symmetric", 8, 2, 12, 2, -1, 1))
sketch9.addConstraint(Sketcher.Constraint("Symmetric", 10, 2, 14, 2, -1, 1))
sketch9.addConstraint(Sketcher.Constraint("Perpendicular", 1, 3))
sketch9.addConstraint(Sketcher.Constraint("Perpendicular", 5, 7))
sketch9.addConstraint(Sketcher.Constraint("Perpendicular", 7, 8))
sketch9.addConstraint(Sketcher.Constraint("Perpendicular", 8, 10))
sketch9.addConstraint(Sketcher.Constraint("Perpendicular", 10, 12))
sketch9.addConstraint(Sketcher.Constraint("Perpendicular", 12, 14))
sketch9.addConstraint(Sketcher.Constraint("Horizontal", 2, 2, 5, 2))
sketch9.addConstraint(Sketcher.Constraint("Horizontal", 1, 2, 6, 2))
sketch9.addConstraint(Sketcher.Constraint("Horizontal", 11, 2, 14, 2))
sketch9.addConstraint(Sketcher.Constraint("Vertical", 0, 2, 3, 2))
sketch9.addConstraint(Sketcher.Constraint("Equal", 4, 2))
sketch9.addConstraint(Sketcher.Constraint("Equal", 13, 11))
sketch9.addConstraint(Sketcher.Constraint("DistanceY", 0, 2, 8, 2, Q("2 mm")))
sketch9.addConstraint(Sketcher.Constraint("DistanceX", 9, 1, 9, 2, Q("13.15 mm")))
sketch9.addConstraint(Sketcher.Constraint("Distance", 8, Q("13.15 mm")))
sketch9.addConstraint(Sketcher.Constraint("DistanceX", 1, 2, 0, 2, Q("10.47 mm")))
sketch9.setExpression("Constraints[41]", "Params.sketch9_width")
sketch9.setExpression("Constraints[42]", "Params.sketch9_length")
pocket5 = body.newObject("PartDesign::Pocket", "Pocket004")
pocket5.Profile = sketch9
pocket5.setExpression("Length", "Params.pocket5_length")
pocket5.Reversed = True

sketch10 = body.newObject("Sketcher::SketchObject", "Sketch009")
sketch10.AttachmentSupport = (doc.getObject("XZ_Plane"), [""])
sketch10.MapMode = "FlatFace"
sketch10.AttachmentOffset = App.Placement(V(0, 0, -3.8), App.Rotation())
sketch10.addGeometry(Part.Circle(V(0, 0, 0), V(0, 0, 1), 4), False)
sketch10.addConstraint(Sketcher.Constraint("Coincident", 0, 3, -1, 1))
sketch10.addConstraint(Sketcher.Constraint("Diameter", 0, Q("8 mm")))
sketch10.setExpression("Constraints[1]", "Params.sketch10_diameter")
pocket6 = body.newObject("PartDesign::Pocket", "Pocket005")
pocket6.Profile = sketch10
pocket6.setExpression("Length", "Params.pocket6_length")
pocket6.Reversed = True

doc.recompute()
